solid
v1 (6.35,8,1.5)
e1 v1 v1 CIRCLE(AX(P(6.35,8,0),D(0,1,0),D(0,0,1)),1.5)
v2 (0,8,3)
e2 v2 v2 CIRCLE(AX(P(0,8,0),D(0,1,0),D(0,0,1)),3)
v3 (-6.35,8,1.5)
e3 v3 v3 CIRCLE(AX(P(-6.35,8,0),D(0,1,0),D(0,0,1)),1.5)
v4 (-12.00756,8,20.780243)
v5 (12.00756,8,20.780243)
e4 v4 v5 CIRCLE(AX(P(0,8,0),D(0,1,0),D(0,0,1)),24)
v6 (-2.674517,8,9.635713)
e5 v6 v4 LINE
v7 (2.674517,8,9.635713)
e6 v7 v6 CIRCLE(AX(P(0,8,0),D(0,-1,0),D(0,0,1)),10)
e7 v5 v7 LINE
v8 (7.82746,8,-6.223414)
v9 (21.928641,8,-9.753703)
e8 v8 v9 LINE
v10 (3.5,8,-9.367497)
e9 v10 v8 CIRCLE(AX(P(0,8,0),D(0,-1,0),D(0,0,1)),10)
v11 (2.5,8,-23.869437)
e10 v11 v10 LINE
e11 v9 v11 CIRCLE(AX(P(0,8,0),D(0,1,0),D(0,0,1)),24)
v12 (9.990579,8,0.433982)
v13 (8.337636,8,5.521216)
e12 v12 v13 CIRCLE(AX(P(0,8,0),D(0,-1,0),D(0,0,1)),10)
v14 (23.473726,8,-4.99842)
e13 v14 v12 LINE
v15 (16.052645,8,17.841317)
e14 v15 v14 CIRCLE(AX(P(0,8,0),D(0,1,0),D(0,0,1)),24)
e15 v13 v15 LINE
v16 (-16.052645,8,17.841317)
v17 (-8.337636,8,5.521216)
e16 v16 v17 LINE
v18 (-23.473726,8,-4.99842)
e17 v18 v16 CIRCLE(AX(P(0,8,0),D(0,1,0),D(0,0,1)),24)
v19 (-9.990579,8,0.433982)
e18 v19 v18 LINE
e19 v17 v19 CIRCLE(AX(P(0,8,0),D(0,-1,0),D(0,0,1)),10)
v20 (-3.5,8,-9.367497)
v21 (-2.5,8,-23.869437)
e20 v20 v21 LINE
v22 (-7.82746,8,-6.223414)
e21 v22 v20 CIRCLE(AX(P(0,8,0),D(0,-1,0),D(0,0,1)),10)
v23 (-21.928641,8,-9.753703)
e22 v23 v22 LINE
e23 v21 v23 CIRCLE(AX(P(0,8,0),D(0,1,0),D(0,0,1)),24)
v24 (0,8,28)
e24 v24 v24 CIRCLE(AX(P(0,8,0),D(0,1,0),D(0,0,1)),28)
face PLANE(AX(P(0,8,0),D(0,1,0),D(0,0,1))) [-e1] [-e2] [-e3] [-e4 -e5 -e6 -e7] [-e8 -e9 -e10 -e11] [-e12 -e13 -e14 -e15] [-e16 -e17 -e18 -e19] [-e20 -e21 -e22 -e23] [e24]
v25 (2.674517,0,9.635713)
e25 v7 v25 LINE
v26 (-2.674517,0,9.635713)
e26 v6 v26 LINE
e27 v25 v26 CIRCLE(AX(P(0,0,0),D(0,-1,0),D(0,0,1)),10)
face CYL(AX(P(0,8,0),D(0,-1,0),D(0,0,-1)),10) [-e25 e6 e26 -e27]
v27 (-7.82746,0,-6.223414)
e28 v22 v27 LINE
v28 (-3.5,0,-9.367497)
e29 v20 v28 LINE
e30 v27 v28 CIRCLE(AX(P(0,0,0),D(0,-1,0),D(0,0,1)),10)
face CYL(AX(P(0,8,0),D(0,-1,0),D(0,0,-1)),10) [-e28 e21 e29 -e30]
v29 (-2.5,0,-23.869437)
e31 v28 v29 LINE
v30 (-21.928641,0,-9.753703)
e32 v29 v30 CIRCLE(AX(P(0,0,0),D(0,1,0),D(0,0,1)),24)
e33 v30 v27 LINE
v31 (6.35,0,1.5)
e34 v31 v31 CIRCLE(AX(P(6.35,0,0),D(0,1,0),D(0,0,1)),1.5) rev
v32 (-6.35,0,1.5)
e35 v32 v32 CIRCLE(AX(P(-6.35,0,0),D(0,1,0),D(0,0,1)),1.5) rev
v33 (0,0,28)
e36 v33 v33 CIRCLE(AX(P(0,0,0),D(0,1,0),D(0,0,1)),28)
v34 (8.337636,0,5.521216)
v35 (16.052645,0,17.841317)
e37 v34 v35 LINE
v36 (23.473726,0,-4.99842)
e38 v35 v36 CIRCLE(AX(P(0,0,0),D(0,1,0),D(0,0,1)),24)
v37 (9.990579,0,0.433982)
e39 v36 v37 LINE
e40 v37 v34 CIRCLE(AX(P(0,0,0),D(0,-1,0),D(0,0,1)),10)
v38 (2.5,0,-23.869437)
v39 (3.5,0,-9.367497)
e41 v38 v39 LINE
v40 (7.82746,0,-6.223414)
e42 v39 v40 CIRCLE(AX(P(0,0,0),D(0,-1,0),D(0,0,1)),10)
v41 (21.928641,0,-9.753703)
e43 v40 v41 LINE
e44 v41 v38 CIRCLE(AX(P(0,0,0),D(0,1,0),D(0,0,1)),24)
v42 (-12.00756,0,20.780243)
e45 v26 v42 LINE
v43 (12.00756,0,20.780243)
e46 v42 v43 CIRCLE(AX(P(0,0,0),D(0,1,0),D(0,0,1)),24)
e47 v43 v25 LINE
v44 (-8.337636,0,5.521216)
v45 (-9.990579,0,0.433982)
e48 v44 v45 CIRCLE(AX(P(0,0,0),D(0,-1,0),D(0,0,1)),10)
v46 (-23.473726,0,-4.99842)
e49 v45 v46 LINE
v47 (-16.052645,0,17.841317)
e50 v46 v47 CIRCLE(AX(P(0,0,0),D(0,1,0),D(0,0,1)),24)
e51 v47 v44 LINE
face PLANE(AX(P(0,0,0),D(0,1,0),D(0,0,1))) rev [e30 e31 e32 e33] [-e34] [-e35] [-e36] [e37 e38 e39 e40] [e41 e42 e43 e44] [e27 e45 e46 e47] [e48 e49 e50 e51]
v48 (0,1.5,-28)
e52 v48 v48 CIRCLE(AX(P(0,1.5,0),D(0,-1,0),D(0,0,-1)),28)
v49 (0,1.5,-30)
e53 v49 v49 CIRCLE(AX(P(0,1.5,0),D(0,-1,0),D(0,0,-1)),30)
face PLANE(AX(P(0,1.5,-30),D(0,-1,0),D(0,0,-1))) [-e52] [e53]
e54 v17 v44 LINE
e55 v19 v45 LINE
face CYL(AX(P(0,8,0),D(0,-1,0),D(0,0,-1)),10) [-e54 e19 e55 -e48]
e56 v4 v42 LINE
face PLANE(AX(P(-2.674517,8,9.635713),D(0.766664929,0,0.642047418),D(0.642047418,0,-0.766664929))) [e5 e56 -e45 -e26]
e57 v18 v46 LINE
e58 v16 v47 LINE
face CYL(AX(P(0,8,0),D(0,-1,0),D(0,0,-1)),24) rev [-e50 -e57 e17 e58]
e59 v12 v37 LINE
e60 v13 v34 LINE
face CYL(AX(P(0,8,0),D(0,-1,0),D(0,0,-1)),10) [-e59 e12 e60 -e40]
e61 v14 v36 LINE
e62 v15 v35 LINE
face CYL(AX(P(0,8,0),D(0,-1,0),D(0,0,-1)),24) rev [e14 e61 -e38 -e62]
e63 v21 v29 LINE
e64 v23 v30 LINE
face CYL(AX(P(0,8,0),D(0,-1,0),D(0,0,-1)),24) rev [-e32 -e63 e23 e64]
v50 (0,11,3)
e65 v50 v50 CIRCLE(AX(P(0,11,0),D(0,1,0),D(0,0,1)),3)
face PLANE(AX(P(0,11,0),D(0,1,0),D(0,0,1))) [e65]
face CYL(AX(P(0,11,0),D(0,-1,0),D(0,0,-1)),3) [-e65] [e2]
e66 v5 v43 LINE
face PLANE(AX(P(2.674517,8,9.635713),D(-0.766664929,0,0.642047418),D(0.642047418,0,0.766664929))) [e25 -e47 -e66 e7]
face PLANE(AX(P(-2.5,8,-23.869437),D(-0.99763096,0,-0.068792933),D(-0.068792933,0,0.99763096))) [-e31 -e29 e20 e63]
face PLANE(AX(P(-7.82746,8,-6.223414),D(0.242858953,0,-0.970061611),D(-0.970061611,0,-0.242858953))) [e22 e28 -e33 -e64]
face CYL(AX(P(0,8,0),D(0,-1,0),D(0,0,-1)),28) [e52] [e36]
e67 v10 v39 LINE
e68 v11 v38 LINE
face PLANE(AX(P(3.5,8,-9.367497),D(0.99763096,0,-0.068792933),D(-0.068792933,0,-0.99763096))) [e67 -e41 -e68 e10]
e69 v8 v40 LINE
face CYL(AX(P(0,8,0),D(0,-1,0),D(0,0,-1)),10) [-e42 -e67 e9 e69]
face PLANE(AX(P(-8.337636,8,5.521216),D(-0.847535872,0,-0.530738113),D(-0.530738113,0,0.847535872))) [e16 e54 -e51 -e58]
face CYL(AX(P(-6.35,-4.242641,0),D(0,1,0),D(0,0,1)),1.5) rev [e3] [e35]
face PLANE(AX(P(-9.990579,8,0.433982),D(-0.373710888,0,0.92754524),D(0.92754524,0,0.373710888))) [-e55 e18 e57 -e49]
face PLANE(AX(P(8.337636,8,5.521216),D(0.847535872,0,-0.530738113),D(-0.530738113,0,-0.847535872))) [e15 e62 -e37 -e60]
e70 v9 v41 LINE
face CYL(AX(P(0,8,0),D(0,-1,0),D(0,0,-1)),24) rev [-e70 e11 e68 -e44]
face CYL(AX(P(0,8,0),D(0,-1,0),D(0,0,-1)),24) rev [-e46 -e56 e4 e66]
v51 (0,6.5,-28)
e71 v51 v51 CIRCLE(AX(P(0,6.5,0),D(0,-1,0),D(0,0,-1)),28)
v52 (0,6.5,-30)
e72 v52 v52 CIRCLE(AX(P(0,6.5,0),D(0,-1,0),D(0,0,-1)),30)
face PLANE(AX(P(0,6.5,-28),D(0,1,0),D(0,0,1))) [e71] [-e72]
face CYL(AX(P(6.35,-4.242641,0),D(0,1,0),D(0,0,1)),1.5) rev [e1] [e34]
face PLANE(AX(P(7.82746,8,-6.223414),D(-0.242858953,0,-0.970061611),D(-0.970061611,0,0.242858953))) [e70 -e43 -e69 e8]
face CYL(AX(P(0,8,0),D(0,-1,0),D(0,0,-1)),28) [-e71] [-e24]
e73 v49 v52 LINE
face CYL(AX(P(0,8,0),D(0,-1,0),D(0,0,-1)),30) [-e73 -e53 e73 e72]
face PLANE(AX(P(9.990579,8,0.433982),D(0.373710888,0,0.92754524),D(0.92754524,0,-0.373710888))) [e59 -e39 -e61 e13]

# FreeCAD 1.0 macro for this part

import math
import FreeCAD as App
import Part
import Sketcher
Q = App.Units.Quantity

doc = App.newDocument("Part")
body = doc.addObject("PartDesign::Body", "Body")

# Sketch on XZ plane
sketch1 = doc.addObject("Sketcher::SketchObject", "Sketch")
body.addObject(sketch1)
sketch1.AttachmentSupport = (doc.XZ_Plane, [""])
sketch1.MapMode = "FlatFace"
sketch1.addGeometry([
    Part.Circle(App.Vector(0, 0, 0), App.Vector(0, 0, 1), 28),  # 0
    Part.ArcOfCircle(Part.Circle(App.Vector(0, 0, 0), App.Vector(0, 0, 1), 24), math.radians(-156.020843), math.radians(-95.979157)),  # 1
    Part.LineSegment(App.Vector(-2.5, -23.869437, 0), App.Vector(-3.5, -9.367497, 0)),  # 2
    Part.ArcOfCircle(Part.Circle(App.Vector(0, 0, 0), App.Vector(0, 0, 1), 10), math.radians(-141.512685), math.radians(-110.487315)),  # 3
    Part.LineSegment(App.Vector(-7.82746, -6.223414, 0), App.Vector(-21.928641, -9.753703, 0)),  # 4
    Part.ArcOfCircle(Part.Circle(App.Vector(0, 0, 0), App.Vector(0, 0, 1), 10), math.radians(146.487315), math.radians(177.512685)),  # 5
    Part.LineSegment(App.Vector(-8.337636, 5.521216, 0), App.Vector(-16.052645, 17.841317, 0)),  # 6
    Part.ArcOfCircle(Part.Circle(App.Vector(0, 0, 0), App.Vector(0, 0, 1), 24), math.radians(131.979157), math.radians(192.020843)),  # 7
    Part.LineSegment(App.Vector(-23.473726, -4.99842, 0), App.Vector(-9.990579, 0.433982, 0)),  # 8
    Part.ArcOfCircle(Part.Circle(App.Vector(0, 0, 0), App.Vector(0, 0, 1), 10), math.radians(-69.512685), math.radians(-38.487315)),  # 9
    Part.LineSegment(App.Vector(3.5, -9.367497, 0), App.Vector(2.5, -23.869437, 0)),  # 10
    Part.ArcOfCircle(Part.Circle(App.Vector(0, 0, 0), App.Vector(0, 0, 1), 24), math.radians(-84.020843), math.radians(-23.979157)),  # 11
    Part.LineSegment(App.Vector(21.928641, -9.753703, 0), App.Vector(7.82746, -6.223414, 0)),  # 12
    Part.ArcOfCircle(Part.Circle(App.Vector(0, 0, 0), App.Vector(0, 0, 1), 10), math.radians(74.487315), math.radians(105.512685)),  # 13
    Part.LineSegment(App.Vector(2.674517, 9.635713, 0), App.Vector(12.00756, 20.780243, 0)),  # 14
    Part.ArcOfCircle(Part.Circle(App.Vector(0, 0, 0), App.Vector(0, 0, 1), 24), math.radians(59.979157), math.radians(120.020843)),  # 15
    Part.LineSegment(App.Vector(-12.00756, 20.780243, 0), App.Vector(-2.674517, 9.635713, 0)),  # 16
    Part.ArcOfCircle(Part.Circle(App.Vector(0, 0, 0), App.Vector(0, 0, 1), 10), math.radians(2.487315), math.radians(33.512685)),  # 17
    Part.LineSegment(App.Vector(9.990579, 0.433982, 0), App.Vector(23.473726, -4.99842, 0)),  # 18
    Part.ArcOfCircle(Part.Circle(App.Vector(0, 0, 0), App.Vector(0, 0, 1), 24), math.radians(-12.020843), math.radians(48.020843)),  # 19
    Part.LineSegment(App.Vector(16.052645, 17.841317, 0), App.Vector(8.337636, 5.521216, 0)),  # 20
], False)
sketch1.addConstraint([
    Sketcher.Constraint("Coincident", 1, 2, 2, 1),
    Sketcher.Constraint("Coincident", 2, 2, 3, 2),
    Sketcher.Constraint("Coincident", 3, 1, 4, 1),
    Sketcher.Constraint("Coincident", 4, 2, 1, 1),
    Sketcher.Constraint("Coincident", 5, 1, 6, 1),
    Sketcher.Constraint("Coincident", 6, 2, 7, 1),
    Sketcher.Constraint("Coincident", 7, 2, 8, 1),
    Sketcher.Constraint("Coincident", 8, 2, 5, 2),
    Sketcher.Constraint("Coincident", 9, 1, 10, 1),
    Sketcher.Constraint("Coincident", 10, 2, 11, 1),
    Sketcher.Constraint("Coincident", 11, 2, 12, 1),
    Sketcher.Constraint("Coincident", 12, 2, 9, 2),
    Sketcher.Constraint("Coincident", 13, 1, 14, 1),
    Sketcher.Constraint("Coincident", 14, 2, 15, 1),
    Sketcher.Constraint("Coincident", 15, 2, 16, 1),
    Sketcher.Constraint("Coincident", 16, 2, 13, 2),
    Sketcher.Constraint("Coincident", 17, 1, 18, 1),
    Sketcher.Constraint("Coincident", 18, 2, 19, 1),
    Sketcher.Constraint("Coincident", 19, 2, 20, 1),
    Sketcher.Constraint("Coincident", 20, 2, 17, 2),
    Sketcher.Constraint("Coincident", 0, 3, -1, 1),
    Sketcher.Constraint("Coincident", 1, 3, -1, 1),
    Sketcher.Constraint("Coincident", 3, 3, -1, 1),
    Sketcher.Constraint("Coincident", 5, 3, -1, 1),
    Sketcher.Constraint("Coincident", 7, 3, -1, 1),
    Sketcher.Constraint("Coincident", 9, 3, -1, 1),
    Sketcher.Constraint("Coincident", 11, 3, -1, 1),
    Sketcher.Constraint("Coincident", 13, 3, -1, 1),
    Sketcher.Constraint("Coincident", 15, 3, -1, 1),
    Sketcher.Constraint("Coincident", 17, 3, -1, 1),
    Sketcher.Constraint("Coincident", 19, 3, -1, 1),
    Sketcher.Constraint("Equal", 3, 5),
    Sketcher.Constraint("Equal", 1, 7),
    Sketcher.Constraint("Equal", 5, 9),
    Sketcher.Constraint("Equal", 7, 11),
    Sketcher.Constraint("Equal", 9, 13),
    Sketcher.Constraint("Equal", 11, 15),
    Sketcher.Constraint("Equal", 13, 17),
    Sketcher.Constraint("Equal", 15, 19),
    Sketcher.Constraint("Horizontal", 2, 2, 9, 1),
    Sketcher.Constraint("Horizontal", 1, 2, 10, 2),
    Sketcher.Constraint("Horizontal", 4, 2, 11, 2),
    Sketcher.Constraint("Horizontal", 3, 1, 12, 2),
    Sketcher.Constraint("Horizontal", 14, 2, 15, 2),
    Sketcher.Constraint("Horizontal", 13, 1, 16, 2),
    Sketcher.Constraint("Horizontal", 8, 2, 17, 1),
    Sketcher.Constraint("Horizontal", 7, 2, 18, 2),
    Sketcher.Constraint("Horizontal", 6, 2, 19, 2),
    Sketcher.Constraint("Horizontal", 5, 1, 20, 2),
    Sketcher.Constraint("Equal", 2, 4),
    Sketcher.Constraint("Equal", 4, 6),
    Sketcher.Constraint("Equal", 6, 8),
    Sketcher.Constraint("Equal", 12, 14),
    Sketcher.Constraint("Diameter", 0, Q("56 mm")),
    Sketcher.Constraint("Radius", 1, Q("24 mm")),
    Sketcher.Constraint("Radius", 3, Q("10 mm")),
    Sketcher.Constraint("DistanceX", 2, 2, 9, 1, Q("7 mm")),
    Sketcher.Constraint("DistanceX", 1, 2, 10, 2, Q("5 mm")),
    Sketcher.Constraint("DistanceY", 5, 1, 6, 2, Q("12.320101 mm")),
    Sketcher.Constraint("DistanceX", 3, 1, -1, 1, Q("7.82746 mm")),
    Sketcher.Constraint("DistanceY", 7, 2, -1, 1, Q("4.99842 mm")),
    Sketcher.Constraint("DistanceX", -1, 1, 14, 2, Q("12.00756 mm")),
])
pad1 = doc.addObject("PartDesign::Pad", "Pad")
body.addObject(pad1)
pad1.Profile = sketch1
pad1.Length = 8
pad1.Reversed = True

# Sketch on XZ plane
sketch2 = doc.addObject("Sketcher::SketchObject", "Sketch001")
body.addObject(sketch2)
sketch2.AttachmentSupport = (doc.XZ_Plane, [""])
sketch2.MapMode = "FlatFace"
sketch2.AttachmentOffset = App.Placement(App.Vector(0, 0, -8), App.Rotation())
sketch2.addGeometry([
    Part.Circle(App.Vector(-6.35, 0, 0), App.Vector(0, 0, 1), 1.5),
    Part.Circle(App.Vector(6.35, 0, 0), App.Vector(0, 0, 1), 1.5),
], False)
sketch2.addConstraint([
    Sketcher.Constraint("Equal", 0, 1),
    Sketcher.Constraint("Symmetric", 0, 3, 1, 3, -1, 1),
    Sketcher.Constraint("PointOnObject", 0, 3, -1),
    Sketcher.Constraint("Diameter", 0, Q("3 mm")),
    Sketcher.Constraint("DistanceX", 0, 3, 1, 3, Q("12.7 mm")),
])
pocket1 = doc.addObject("PartDesign::Pocket", "Pocket")
body.addObject(pocket1)
pocket1.Profile = sketch2
pocket1.Length = 8
pocket1.Reversed = True

# Sketch on YZ plane
sketch3 = doc.addObject("Sketcher::SketchObject", "Sketch002")
body.addObject(sketch3)
sketch3.AttachmentSupport = (doc.YZ_Plane, [""])
sketch3.MapMode = "FlatFace"
sketch3.addGeometry([
    Part.LineSegment(App.Vector(6.5, -28, 0), App.Vector(1.5, -28, 0)),
    Part.LineSegment(App.Vector(1.5, -28, 0), App.Vector(1.5, -30, 0)),
    Part.LineSegment(App.Vector(1.5, -30, 0), App.Vector(6.5, -30, 0)),
    Part.LineSegment(App.Vector(6.5, -30, 0), App.Vector(6.5, -28, 0)),
], False)
sketch3.addConstraint([
    Sketcher.Constraint("Coincident", 0, 2, 1, 1),
    Sketcher.Constraint("Coincident", 1, 2, 2, 1),
    Sketcher.Constraint("Coincident", 2, 2, 3, 1),
    Sketcher.Constraint("Coincident", 3, 2, 0, 1),
    Sketcher.Constraint("Horizontal", 0),
    Sketcher.Constraint("Vertical", 1),
    Sketcher.Constraint("Horizontal", 2),
    Sketcher.Constraint("Vertical", 3),
    Sketcher.Constraint("DistanceX", 0, 2, 0, 1, Q("5 mm")),
    Sketcher.Constraint("DistanceY", 1, 2, 1, 1, Q("2 mm")),
    Sketcher.Constraint("DistanceY", 0, 2, -1, 1, Q("28 mm")),
    Sketcher.Constraint("DistanceX", -1, 1, 0, 2, Q("1.5 mm")),
])

# Sketch on XZ plane
sketch4 = doc.addObject("Sketcher::SketchObject", "Sketch003")
body.addObject(sketch4)
sketch4.AttachmentSupport = (doc.XZ_Plane, [""])
sketch4.MapMode = "FlatFace"
sketch4.AttachmentOffset = App.Placement(App.Vector(0, 0, -8), App.Rotation())
sketch4.addGeometry([
    Part.ArcOfCircle(Part.Circle(App.Vector(0, 0, 0), App.Vector(0, 0, 1), 28), math.radians(0), math.radians(90)),
    Part.ArcOfCircle(Part.Circle(App.Vector(0, 0, 0), App.Vector(0, 0, 1), 28), math.radians(-90), math.radians(0)),
    Part.ArcOfCircle(Part.Circle(App.Vector(0, 0, 0), App.Vector(0, 0, 1), 28), math.radians(-180), math.radians(-90)),
    Part.ArcOfCircle(Part.Circle(App.Vector(0, 0, 0), App.Vector(0, 0, 1), 28), math.radians(90), math.radians(180)),
], False)
sketch4.addConstraint([
    Sketcher.Constraint("Tangent", 0, 1, 1, 2),
    Sketcher.Constraint("Tangent", 1, 1, 2, 2),
    Sketcher.Constraint("Tangent", 2, 1, 3, 2),
    Sketcher.Constraint("Tangent", 3, 1, 0, 2),
    Sketcher.Constraint("Coincident", 0, 3, -1, 1),
    Sketcher.Constraint("Equal", 0, 1),
    Sketcher.Constraint("PointOnObject", 0, 1, -1),
    Sketcher.Constraint("PointOnObject", 1, 1, -2),
    Sketcher.Constraint("PointOnObject", 2, 1, -1),
    Sketcher.Constraint("PointOnObject", 3, 1, -2),
    Sketcher.Constraint("Radius", 0, Q("28 mm")),
])
doc.recompute()

additivepipe = doc.addObject("PartDesign::AdditivePipe", "AdditivePipe")
body.addObject(additivepipe)
additivepipe.Profile = sketch3
additivepipe.Spine = (sketch4, ["Edge1", "Edge2", "Edge3", "Edge4"])

# Sketch on XZ plane
sketch5 = doc.addObject("Sketcher::SketchObject", "Sketch004")
body.addObject(sketch5)
sketch5.AttachmentSupport = (doc.XZ_Plane, [""])
sketch5.MapMode = "FlatFace"
sketch5.AttachmentOffset = App.Placement(App.Vector(0, 0, -8), App.Rotation())
sketch5.addGeometry(Part.Circle(App.Vector(0, 0, 0), App.Vector(0, 0, 1), 3), False)
sketch5.addConstraint([
    Sketcher.Constraint("Coincident", 0, 3, -1, 1),
    Sketcher.Constraint("Diameter", 0, Q("6 mm")),
])
pad2 = doc.addObject("PartDesign::Pad", "Pad001")
body.addObject(pad2)
pad2.Profile = sketch5
pad2.Length = 3
pad2.Reversed = True

doc.recompute()
